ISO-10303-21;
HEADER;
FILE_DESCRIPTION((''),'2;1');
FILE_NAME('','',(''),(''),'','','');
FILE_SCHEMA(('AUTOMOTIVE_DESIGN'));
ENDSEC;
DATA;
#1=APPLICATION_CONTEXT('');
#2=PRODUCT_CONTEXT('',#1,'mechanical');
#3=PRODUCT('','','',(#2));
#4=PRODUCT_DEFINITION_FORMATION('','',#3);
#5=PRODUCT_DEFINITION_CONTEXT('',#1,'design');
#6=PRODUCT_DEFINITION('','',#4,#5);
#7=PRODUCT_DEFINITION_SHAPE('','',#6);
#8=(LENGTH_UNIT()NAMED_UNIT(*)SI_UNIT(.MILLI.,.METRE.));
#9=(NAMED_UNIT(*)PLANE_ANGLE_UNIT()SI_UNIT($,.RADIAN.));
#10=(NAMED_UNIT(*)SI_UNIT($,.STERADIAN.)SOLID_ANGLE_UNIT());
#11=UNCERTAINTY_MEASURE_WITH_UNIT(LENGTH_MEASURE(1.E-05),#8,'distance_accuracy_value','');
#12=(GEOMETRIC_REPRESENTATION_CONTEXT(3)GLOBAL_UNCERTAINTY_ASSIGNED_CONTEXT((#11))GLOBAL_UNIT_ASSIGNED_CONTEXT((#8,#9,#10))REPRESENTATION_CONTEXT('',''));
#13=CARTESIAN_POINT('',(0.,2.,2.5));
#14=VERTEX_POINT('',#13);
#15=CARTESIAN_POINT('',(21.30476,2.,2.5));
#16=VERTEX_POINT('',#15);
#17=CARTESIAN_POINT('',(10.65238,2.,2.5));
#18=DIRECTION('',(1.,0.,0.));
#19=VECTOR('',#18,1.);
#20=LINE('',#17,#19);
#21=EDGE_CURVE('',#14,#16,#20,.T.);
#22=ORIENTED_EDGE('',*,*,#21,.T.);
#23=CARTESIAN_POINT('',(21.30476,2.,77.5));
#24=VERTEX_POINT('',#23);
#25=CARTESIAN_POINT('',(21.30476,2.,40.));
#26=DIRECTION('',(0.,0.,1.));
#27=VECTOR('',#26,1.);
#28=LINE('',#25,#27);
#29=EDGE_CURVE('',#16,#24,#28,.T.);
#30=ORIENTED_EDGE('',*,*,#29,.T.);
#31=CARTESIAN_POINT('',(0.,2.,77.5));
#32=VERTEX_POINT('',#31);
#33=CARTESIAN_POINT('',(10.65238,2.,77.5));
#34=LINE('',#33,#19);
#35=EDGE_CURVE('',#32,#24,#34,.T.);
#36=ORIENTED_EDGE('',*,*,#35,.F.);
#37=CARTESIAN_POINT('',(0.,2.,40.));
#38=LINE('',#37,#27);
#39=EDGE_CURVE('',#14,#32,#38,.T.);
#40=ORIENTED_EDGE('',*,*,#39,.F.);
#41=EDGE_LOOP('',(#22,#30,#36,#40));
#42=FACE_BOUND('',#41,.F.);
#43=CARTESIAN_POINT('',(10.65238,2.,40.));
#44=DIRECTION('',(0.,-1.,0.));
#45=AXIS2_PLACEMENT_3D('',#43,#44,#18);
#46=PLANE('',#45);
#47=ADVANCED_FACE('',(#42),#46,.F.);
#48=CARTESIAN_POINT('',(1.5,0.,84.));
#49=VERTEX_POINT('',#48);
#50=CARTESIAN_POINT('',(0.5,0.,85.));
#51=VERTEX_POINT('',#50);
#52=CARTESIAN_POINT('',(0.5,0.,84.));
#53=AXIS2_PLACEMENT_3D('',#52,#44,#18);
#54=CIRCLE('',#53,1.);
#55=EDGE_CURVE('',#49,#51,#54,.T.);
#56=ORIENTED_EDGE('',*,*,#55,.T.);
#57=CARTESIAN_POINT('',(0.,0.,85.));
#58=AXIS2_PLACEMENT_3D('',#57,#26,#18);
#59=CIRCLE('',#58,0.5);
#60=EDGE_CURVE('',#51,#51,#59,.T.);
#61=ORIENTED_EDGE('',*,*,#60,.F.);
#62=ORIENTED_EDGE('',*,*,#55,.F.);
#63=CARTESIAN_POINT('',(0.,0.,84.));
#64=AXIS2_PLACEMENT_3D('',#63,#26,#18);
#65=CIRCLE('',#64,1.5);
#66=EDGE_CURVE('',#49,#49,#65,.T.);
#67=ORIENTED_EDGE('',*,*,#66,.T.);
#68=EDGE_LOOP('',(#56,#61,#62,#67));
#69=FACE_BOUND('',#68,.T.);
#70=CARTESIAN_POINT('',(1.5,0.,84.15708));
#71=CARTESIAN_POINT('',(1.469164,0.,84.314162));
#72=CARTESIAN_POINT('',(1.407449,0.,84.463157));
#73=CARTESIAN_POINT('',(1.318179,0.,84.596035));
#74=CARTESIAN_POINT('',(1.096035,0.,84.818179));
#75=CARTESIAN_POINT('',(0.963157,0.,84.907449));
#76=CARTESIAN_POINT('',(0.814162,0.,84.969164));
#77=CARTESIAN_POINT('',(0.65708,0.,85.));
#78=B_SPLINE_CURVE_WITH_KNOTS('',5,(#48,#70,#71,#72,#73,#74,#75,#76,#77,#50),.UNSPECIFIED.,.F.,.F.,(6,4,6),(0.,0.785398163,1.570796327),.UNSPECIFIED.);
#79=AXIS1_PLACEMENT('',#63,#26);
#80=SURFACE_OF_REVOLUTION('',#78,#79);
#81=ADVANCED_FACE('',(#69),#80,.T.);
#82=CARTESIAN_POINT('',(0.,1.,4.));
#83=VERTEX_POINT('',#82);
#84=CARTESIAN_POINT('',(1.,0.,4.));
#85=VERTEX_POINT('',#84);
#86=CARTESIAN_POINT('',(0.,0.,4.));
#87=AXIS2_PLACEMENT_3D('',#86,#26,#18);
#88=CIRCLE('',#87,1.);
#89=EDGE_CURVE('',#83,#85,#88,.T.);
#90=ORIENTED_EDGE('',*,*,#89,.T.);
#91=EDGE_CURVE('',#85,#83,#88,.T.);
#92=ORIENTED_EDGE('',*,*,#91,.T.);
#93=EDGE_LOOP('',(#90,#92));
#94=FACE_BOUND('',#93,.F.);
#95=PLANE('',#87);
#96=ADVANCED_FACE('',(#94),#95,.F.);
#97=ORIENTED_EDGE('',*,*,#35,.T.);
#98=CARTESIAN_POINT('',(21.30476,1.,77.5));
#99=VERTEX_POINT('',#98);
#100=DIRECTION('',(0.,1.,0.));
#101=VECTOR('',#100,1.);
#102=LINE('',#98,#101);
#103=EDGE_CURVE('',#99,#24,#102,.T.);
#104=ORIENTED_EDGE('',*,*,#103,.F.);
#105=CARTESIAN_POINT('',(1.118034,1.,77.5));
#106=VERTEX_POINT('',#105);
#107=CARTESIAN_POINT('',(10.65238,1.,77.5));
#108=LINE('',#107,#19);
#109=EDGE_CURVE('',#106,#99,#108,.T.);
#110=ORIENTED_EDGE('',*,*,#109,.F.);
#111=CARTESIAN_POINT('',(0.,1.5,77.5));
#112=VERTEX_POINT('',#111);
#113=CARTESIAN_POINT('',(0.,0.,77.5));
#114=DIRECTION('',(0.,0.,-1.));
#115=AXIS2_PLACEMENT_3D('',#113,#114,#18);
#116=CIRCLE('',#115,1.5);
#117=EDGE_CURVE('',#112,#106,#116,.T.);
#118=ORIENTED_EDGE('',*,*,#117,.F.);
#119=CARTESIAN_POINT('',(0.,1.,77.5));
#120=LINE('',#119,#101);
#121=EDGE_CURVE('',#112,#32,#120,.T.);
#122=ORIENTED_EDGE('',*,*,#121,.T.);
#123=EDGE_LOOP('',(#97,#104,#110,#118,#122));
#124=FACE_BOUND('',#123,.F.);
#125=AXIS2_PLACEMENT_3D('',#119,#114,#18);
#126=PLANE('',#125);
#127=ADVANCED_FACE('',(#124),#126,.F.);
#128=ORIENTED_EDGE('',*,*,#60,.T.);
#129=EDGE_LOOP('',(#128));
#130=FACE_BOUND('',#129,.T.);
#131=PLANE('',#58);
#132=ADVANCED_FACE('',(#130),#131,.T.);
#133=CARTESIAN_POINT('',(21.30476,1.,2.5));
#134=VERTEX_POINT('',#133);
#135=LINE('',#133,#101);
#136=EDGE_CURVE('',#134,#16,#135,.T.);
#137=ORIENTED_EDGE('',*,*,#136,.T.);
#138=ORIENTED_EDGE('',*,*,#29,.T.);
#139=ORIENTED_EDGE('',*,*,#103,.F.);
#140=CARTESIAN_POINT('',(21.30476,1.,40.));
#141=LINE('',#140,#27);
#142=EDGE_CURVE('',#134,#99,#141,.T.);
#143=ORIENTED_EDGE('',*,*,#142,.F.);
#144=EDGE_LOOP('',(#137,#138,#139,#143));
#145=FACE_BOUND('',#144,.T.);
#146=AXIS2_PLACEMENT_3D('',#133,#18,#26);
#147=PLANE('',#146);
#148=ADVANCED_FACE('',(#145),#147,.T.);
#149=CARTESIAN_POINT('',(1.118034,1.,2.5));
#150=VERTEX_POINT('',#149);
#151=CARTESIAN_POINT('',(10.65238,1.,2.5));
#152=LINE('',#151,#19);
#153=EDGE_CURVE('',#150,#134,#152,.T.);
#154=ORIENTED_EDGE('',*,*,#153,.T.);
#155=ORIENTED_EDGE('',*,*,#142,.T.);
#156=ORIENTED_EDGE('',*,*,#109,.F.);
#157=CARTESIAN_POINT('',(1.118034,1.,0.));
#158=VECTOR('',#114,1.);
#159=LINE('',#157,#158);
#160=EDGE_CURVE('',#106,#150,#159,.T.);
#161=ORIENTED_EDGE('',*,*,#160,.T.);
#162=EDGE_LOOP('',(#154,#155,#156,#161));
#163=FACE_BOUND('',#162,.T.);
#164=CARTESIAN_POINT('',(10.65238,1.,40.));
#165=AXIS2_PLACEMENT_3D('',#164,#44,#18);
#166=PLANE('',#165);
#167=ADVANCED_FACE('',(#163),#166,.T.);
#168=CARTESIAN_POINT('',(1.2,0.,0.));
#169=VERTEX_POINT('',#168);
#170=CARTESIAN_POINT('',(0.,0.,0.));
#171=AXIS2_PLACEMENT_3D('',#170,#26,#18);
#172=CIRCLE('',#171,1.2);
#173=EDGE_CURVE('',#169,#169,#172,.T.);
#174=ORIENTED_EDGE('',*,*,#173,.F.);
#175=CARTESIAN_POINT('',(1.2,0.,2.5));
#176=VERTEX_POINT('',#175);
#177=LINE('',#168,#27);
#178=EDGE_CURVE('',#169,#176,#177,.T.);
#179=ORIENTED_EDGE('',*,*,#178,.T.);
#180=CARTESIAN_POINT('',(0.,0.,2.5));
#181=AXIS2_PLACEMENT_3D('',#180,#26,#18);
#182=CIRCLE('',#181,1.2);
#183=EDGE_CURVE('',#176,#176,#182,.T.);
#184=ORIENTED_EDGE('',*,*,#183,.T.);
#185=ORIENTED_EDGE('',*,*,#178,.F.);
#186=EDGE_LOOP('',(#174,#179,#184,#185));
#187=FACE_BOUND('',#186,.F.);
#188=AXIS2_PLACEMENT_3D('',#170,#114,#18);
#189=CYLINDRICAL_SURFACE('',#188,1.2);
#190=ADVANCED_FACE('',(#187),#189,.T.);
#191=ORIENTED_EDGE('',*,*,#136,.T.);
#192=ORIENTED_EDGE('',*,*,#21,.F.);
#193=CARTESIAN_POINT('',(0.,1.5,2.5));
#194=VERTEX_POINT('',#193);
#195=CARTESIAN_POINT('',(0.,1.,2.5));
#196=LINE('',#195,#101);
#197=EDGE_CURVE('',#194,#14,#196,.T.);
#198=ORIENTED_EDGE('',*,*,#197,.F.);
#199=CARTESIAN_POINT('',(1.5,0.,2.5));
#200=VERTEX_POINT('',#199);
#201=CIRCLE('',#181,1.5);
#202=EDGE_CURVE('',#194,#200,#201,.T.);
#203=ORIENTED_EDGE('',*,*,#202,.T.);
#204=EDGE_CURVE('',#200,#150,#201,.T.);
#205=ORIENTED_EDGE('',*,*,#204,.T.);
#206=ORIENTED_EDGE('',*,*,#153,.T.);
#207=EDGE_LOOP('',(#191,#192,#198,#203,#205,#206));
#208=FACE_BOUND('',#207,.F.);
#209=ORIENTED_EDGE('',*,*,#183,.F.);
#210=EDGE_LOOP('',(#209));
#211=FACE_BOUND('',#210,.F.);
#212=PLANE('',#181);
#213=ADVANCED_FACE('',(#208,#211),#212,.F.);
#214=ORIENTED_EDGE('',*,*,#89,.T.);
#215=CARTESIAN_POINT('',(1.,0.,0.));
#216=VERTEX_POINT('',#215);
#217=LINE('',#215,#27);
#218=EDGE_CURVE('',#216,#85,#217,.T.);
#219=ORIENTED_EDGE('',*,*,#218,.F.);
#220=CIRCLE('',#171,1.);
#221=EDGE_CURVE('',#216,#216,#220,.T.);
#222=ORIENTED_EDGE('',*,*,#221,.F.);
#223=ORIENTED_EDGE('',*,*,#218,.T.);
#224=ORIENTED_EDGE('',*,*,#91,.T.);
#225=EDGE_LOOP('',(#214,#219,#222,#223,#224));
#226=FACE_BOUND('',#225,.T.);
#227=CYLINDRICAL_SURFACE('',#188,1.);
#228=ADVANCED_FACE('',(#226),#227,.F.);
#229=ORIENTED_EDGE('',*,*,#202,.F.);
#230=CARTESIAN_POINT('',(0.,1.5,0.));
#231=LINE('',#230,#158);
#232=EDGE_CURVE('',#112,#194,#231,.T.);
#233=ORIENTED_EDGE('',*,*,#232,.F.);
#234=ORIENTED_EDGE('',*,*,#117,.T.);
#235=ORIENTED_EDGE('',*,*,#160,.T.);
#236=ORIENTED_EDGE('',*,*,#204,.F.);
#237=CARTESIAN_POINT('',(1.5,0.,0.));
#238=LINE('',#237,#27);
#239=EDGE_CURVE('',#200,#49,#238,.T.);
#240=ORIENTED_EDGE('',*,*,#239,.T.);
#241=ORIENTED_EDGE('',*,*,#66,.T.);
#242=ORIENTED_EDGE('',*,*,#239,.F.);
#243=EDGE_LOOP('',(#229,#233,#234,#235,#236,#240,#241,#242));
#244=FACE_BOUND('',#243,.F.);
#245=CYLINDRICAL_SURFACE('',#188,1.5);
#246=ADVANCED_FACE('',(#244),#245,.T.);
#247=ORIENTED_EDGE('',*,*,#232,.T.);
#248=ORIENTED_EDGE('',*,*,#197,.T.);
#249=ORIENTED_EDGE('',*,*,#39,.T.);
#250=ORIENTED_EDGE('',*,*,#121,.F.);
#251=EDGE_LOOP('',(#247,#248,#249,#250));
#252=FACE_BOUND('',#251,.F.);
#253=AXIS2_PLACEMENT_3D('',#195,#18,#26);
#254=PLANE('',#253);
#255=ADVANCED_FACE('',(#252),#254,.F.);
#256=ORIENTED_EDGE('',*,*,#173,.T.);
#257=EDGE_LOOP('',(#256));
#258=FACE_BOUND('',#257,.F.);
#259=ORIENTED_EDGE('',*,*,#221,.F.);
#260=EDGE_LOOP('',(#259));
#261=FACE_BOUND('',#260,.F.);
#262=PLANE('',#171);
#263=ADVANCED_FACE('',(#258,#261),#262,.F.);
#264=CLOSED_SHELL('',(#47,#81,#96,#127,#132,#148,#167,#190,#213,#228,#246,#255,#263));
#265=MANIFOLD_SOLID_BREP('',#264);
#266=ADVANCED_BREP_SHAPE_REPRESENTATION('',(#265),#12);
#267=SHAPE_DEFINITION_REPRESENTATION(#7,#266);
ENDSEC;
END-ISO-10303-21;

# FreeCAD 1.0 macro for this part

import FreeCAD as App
import Part
import Sketcher
from FreeCAD import Vector


def edges_at(feature, points):
    """Names of the edges that pass closest to the given points."""
    edges = feature.Shape.Edges
    near = lambda p: min(range(len(edges)), key=lambda i: edges[i].distToShape(Part.Vertex(*p))[0])
    return sorted({f"Edge{near(p) + 1}" for p in points})

doc = App.newDocument("Part")
body = doc.addObject("PartDesign::Body", "Body")

sketch1 = doc.addObject("Sketcher::SketchObject", "Sketch")
body.addObject(sketch1)
sketch1.AttachmentSupport = (doc.XY_Plane, [""])
sketch1.MapMode = "FlatFace"
sketch1.addGeometry(Part.Circle(Vector(0, 0, 0), Vector(0, 0, 1), 1.5), False)
sketch1.addConstraint([
    Sketcher.Constraint("Coincident", 0, 3, -1, 1),
    Sketcher.Constraint("Diameter", 0, 3.0),
])
pad1 = doc.addObject("PartDesign::Pad", "Pad")
body.addObject(pad1)
pad1.Profile = sketch1
pad1.Length = 85

sketch2 = doc.addObject("Sketcher::SketchObject", "Sketch001")
body.addObject(sketch2)
sketch2.AttachmentSupport = (doc.XY_Plane, [""])
sketch2.MapMode = "FlatFace"
sketch2.addGeometry([
    Part.Circle(Vector(0, 0, 0), Vector(0, 0, 1), 1.5),
    Part.Circle(Vector(0, 0, 0), Vector(0, 0, 1), 1.2),
], False)
sketch2.addConstraint([
    Sketcher.Constraint("Coincident", 0, 3, -1, 1),
    Sketcher.Constraint("Coincident", 1, 3, -1, 1),
    Sketcher.Constraint("Diameter", 0, 3.0),
    Sketcher.Constraint("Diameter", 1, 2.4),
])
pocket1 = doc.addObject("PartDesign::Pocket", "Pocket")
body.addObject(pocket1)
pocket1.Profile = sketch2
pocket1.Length = 2.5
pocket1.Reversed = True

sketch3 = doc.addObject("Sketcher::SketchObject", "Sketch002")
body.addObject(sketch3)
sketch3.AttachmentSupport = (doc.XY_Plane, [""])
sketch3.MapMode = "FlatFace"
sketch3.addGeometry(Part.Circle(Vector(0, 0, 0), Vector(0, 0, 1), 1), False)
sketch3.addConstraint([
    Sketcher.Constraint("Coincident", 0, 3, -1, 1),
    Sketcher.Constraint("Diameter", 0, 2.0),
])
pocket2 = doc.addObject("PartDesign::Pocket", "Pocket001")
body.addObject(pocket2)
pocket2.Profile = sketch3
pocket2.Length = 4
pocket2.Reversed = True
doc.recompute()

fillet = doc.addObject("PartDesign::Fillet", "Fillet")
body.addObject(fillet)
fillet.Base = (pocket2, edges_at(pocket2, [(-1.5, 0, 85)]))
fillet.Radius = 1

sketch4 = doc.addObject("Sketcher::SketchObject", "Sketch003")
body.addObject(sketch4)
sketch4.AttachmentSupport = (doc.XZ_Plane, [""])
sketch4.MapMode = "FlatFace"
sketch4.AttachmentOffset = App.Placement(Vector(0, 0, -1), App.Rotation())
sketch4.addGeometry([
    Part.LineSegment(Vector(0, 78, 0), Vector(0, 2, 0)),
    Part.LineSegment(Vector(0, 2, 0), Vector(21, 2, 0)),
    Part.LineSegment(Vector(21, 2, 0), Vector(21, 78, 0)),
    Part.LineSegment(Vector(21, 78, 0), Vector(0, 78, 0)),
], False)
sketch4.addConstraint([
    Sketcher.Constraint("Coincident", 0, 2, 1, 1),
    Sketcher.Constraint("Coincident", 1, 2, 2, 1),
    Sketcher.Constraint("Coincident", 2, 2, 3, 1),
    Sketcher.Constraint("Coincident", 3, 2, 0, 1),
    Sketcher.Constraint("Vertical", 0),
    Sketcher.Constraint("Horizontal", 1),
    Sketcher.Constraint("Vertical", 2),
    Sketcher.Constraint("Horizontal", 3),
    Sketcher.Constraint("PointOnObject", 0, 2, -2),
    Sketcher.Constraint("DistanceY", 0, 2, 0, 1, 75.0),
    Sketcher.Constraint("DistanceY", -1, 1, 0, 2, 2.5),
    Sketcher.Constraint("DistanceX", 1, 1, 1, 2, 21.30476),
])
pad2 = doc.addObject("PartDesign::Pad", "Pad001")
body.addObject(pad2)
pad2.Profile = sketch4
pad2.Length = 1
pad2.Reversed = True

doc.recompute()
